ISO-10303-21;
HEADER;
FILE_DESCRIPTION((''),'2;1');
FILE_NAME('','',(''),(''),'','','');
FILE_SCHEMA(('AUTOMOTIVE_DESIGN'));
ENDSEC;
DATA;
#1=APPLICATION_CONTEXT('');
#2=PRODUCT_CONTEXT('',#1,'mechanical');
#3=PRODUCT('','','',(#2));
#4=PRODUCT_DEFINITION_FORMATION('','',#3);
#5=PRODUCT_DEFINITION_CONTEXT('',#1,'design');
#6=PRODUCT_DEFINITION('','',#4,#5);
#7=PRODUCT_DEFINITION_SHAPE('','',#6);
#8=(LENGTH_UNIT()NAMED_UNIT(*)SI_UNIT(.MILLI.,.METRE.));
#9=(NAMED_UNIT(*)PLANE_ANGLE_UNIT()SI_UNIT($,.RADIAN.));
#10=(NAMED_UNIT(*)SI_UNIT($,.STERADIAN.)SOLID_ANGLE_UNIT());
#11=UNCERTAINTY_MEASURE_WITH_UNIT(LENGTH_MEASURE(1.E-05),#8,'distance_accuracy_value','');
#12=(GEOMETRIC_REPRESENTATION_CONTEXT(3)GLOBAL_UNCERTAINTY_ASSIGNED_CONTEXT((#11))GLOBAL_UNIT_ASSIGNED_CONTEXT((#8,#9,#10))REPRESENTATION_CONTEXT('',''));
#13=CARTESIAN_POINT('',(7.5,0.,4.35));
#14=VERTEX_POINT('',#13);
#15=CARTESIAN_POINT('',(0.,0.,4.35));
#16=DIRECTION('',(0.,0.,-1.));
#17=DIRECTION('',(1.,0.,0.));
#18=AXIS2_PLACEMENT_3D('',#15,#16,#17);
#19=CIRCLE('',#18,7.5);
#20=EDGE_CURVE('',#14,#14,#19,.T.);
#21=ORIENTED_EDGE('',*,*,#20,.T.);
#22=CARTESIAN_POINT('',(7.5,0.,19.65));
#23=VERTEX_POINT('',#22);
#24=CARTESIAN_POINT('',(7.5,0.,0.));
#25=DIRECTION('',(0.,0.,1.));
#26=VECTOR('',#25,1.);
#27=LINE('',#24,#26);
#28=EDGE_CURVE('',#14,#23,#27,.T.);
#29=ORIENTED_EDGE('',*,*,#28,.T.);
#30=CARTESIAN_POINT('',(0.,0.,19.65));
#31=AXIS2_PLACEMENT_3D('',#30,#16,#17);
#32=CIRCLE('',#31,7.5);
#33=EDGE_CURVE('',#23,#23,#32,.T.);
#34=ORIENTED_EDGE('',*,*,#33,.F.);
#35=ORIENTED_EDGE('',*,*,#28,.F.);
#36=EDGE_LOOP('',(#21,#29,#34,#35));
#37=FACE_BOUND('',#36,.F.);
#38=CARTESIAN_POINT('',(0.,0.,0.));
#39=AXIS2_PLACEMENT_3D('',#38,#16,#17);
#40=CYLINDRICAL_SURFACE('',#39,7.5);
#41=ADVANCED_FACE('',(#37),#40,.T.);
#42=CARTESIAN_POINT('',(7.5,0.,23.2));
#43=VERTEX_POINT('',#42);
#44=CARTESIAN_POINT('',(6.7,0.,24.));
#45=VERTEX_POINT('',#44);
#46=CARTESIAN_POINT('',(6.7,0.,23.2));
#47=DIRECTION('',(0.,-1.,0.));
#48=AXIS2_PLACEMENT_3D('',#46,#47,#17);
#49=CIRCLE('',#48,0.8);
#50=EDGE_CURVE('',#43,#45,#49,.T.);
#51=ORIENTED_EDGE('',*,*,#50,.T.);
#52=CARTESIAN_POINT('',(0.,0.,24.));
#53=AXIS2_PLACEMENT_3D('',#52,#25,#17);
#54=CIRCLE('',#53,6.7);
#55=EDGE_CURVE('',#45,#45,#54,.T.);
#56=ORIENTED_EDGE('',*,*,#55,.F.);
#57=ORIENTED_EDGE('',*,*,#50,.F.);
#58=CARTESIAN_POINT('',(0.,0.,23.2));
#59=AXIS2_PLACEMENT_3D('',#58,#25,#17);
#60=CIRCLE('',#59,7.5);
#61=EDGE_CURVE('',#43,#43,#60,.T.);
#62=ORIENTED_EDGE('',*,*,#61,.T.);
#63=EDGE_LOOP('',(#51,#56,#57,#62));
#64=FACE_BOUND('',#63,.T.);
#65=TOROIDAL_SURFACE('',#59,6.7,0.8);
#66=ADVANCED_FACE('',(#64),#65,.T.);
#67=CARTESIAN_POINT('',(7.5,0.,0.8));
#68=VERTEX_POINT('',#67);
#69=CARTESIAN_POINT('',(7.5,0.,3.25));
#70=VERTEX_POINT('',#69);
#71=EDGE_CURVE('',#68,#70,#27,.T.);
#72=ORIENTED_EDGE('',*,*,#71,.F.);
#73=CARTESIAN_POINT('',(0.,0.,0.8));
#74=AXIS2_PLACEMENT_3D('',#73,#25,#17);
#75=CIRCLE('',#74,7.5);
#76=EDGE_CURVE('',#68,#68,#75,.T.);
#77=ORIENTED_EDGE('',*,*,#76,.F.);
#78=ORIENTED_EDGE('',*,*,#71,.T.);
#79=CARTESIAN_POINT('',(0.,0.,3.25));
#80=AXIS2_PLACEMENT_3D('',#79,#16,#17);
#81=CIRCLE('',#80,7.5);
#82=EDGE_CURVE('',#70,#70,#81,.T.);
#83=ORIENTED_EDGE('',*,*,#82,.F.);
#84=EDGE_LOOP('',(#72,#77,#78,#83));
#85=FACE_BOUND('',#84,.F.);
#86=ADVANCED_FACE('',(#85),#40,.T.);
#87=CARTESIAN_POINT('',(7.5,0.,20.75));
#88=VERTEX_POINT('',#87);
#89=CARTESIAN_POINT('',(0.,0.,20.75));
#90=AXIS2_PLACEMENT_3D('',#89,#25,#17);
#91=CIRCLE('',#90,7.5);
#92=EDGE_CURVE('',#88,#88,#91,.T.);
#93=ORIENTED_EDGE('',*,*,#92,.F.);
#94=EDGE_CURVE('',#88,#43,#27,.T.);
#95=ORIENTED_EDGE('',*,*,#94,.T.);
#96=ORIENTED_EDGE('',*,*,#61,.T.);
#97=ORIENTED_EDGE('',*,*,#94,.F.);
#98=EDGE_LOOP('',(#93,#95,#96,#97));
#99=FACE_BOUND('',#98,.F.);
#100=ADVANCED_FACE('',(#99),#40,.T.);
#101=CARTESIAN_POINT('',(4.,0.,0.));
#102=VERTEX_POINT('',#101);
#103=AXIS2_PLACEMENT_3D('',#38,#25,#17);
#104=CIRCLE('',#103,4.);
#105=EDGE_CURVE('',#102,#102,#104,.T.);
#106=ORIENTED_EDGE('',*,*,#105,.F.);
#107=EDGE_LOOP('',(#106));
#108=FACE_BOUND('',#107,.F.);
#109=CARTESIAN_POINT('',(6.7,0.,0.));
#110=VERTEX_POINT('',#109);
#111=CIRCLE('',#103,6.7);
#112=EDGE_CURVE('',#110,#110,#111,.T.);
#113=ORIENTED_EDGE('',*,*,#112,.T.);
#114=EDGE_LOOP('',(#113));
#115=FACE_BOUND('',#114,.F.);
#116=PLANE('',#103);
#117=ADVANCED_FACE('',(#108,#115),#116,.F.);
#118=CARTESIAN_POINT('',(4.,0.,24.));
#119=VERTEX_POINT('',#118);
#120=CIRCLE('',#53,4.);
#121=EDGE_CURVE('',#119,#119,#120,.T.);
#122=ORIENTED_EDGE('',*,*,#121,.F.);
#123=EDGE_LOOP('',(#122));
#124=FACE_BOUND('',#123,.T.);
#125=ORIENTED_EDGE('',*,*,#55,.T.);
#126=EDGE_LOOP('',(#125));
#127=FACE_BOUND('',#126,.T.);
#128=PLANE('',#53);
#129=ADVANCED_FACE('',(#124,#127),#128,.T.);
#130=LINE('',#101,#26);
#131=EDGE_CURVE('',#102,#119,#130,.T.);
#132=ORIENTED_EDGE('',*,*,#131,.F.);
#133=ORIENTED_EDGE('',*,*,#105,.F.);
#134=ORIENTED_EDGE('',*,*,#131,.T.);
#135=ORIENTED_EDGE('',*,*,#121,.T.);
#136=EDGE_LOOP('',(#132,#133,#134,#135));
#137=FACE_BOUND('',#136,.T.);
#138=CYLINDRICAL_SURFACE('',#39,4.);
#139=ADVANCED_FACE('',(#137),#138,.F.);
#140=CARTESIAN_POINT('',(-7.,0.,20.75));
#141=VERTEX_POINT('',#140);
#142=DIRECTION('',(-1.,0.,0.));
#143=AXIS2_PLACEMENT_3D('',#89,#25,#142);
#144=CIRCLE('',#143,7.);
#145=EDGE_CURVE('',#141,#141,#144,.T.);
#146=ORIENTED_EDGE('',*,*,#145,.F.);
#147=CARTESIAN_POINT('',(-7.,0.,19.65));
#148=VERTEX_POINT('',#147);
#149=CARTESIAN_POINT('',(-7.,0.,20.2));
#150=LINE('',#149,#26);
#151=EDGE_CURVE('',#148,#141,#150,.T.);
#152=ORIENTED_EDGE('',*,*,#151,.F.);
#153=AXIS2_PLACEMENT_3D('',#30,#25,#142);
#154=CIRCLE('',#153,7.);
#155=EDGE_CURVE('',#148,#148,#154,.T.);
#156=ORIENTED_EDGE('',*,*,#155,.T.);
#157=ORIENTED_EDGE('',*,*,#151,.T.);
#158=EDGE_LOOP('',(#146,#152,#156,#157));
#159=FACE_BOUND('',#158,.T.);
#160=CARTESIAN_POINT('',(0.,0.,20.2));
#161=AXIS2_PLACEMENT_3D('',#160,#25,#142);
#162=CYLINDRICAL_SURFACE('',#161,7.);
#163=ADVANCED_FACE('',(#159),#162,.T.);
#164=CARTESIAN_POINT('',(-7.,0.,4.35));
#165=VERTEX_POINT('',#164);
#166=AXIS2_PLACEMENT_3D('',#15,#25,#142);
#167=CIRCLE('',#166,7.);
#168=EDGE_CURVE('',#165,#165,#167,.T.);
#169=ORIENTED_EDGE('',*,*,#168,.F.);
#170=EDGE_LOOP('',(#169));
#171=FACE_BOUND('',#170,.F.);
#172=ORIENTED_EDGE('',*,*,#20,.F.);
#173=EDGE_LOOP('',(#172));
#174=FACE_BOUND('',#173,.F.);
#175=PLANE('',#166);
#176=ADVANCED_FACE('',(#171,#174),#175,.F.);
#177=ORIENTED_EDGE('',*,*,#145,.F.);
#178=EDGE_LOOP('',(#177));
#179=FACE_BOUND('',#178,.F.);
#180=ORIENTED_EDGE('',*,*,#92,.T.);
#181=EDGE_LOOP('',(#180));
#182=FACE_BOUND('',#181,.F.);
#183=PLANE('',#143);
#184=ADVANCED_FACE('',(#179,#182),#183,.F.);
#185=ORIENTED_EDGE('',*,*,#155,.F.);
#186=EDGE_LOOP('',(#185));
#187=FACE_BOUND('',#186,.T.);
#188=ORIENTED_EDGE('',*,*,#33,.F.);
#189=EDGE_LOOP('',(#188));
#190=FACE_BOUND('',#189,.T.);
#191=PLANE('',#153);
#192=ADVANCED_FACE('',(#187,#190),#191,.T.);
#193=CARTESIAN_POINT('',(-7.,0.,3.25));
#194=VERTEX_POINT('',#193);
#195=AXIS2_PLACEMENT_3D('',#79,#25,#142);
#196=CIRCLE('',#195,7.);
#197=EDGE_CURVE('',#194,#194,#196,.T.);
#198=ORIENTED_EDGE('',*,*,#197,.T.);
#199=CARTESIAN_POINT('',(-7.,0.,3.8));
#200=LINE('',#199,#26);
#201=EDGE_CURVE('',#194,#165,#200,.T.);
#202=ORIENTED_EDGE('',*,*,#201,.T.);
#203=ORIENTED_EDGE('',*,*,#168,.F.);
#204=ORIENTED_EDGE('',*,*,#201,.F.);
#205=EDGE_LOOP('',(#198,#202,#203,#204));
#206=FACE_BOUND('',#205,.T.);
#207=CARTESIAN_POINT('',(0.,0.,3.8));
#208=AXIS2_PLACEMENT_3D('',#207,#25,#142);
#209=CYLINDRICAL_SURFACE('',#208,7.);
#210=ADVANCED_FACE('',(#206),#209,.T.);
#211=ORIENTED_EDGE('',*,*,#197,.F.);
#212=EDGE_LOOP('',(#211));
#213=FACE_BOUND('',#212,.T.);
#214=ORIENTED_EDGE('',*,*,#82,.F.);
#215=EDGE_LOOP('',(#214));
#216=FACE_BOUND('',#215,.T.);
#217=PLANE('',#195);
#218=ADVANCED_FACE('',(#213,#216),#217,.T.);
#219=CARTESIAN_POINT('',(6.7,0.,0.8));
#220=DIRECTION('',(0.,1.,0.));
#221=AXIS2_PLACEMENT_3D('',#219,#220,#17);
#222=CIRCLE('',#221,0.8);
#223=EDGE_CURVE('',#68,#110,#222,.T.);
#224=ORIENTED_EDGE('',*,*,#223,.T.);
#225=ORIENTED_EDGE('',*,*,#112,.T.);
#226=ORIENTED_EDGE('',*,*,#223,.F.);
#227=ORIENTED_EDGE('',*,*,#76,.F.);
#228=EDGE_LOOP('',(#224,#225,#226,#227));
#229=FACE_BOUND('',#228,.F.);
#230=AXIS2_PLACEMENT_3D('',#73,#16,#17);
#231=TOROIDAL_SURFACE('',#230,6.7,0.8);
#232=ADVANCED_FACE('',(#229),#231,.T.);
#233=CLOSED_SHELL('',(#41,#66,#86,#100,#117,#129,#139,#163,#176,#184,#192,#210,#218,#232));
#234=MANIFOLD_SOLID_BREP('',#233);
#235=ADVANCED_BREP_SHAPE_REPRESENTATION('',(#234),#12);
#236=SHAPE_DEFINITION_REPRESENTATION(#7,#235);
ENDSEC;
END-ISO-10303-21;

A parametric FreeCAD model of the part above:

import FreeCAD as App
import Part
import Sketcher
Q = App.Units.Quantity


def edges_at(feature, points):
    """Names of the edges that pass closest to the given points."""
    edges = feature.Shape.Edges
    near = lambda p: min(range(len(edges)), key=lambda i: edges[i].distToShape(Part.Vertex(*p))[0])
    return sorted({f"Edge{near(p) + 1}" for p in points})

doc = App.newDocument("Part")
body = doc.addObject("PartDesign::Body", "Body")

# Sketch on XY plane
sketch1 = body.newObject("Sketcher::SketchObject", "Sketch")
sketch1.AttachmentSupport = (doc.getObject("XY_Plane"), [""])
sketch1.MapMode = "FlatFace"
sketch1.addGeometry([
    Part.Circle(App.Vector(0, 0, 0), App.Vector(0, 0, 1), 7.5),
    Part.Circle(App.Vector(0, 0, 0), App.Vector(0, 0, 1), 4),
], False)
sketch1.addConstraint([
    Sketcher.Constraint("Coincident", 0, 3, -1, 1),
    Sketcher.Constraint("Coincident", 1, 3, -1, 1),
    Sketcher.Constraint("Diameter", 0, Q("15 mm")),
    Sketcher.Constraint("Diameter", 1, Q("8 mm")),
])
pad1 = body.newObject("PartDesign::Pad", "Pad")
pad1.Profile = sketch1
pad1.Length = 24

# Sketch on XZ plane
sketch2 = body.newObject("Sketcher::SketchObject", "Sketch001")
sketch2.AttachmentSupport = (doc.getObject("XZ_Plane"), [""])
sketch2.MapMode = "FlatFace"
sketch2.addGeometry([
    Part.LineSegment(App.Vector(-7.5, 20.8, 0), App.Vector(-7.5, 19.6, 0)),  # 0
    Part.LineSegment(App.Vector(-7.5, 19.6, 0), App.Vector(-7, 19.6, 0)),  # 1
    Part.LineSegment(App.Vector(-7, 19.6, 0), App.Vector(-7, 20.8, 0)),  # 2
    Part.LineSegment(App.Vector(-7, 20.8, 0), App.Vector(-7.5, 20.8, 0)),  # 3
    Part.LineSegment(App.Vector(-7.5, 4.3, 0), App.Vector(-7.5, 3.2, 0)),  # 4
    Part.LineSegment(App.Vector(-7.5, 3.2, 0), App.Vector(-7, 3.2, 0)),  # 5
    Part.LineSegment(App.Vector(-7, 3.2, 0), App.Vector(-7, 4.3, 0)),  # 6
    Part.LineSegment(App.Vector(-7, 4.3, 0), App.Vector(-7.5, 4.3, 0)),  # 7
], False)
sketch2.addConstraint([
    Sketcher.Constraint("Coincident", 0, 2, 1, 1),
    Sketcher.Constraint("Coincident", 1, 2, 2, 1),
    Sketcher.Constraint("Coincident", 2, 2, 3, 1),
    Sketcher.Constraint("Coincident", 3, 2, 0, 1),
    Sketcher.Constraint("Coincident", 4, 2, 5, 1),
    Sketcher.Constraint("Coincident", 5, 2, 6, 1),
    Sketcher.Constraint("Coincident", 6, 2, 7, 1),
    Sketcher.Constraint("Coincident", 7, 2, 4, 1),
    Sketcher.Constraint("Vertical", 0),
    Sketcher.Constraint("Horizontal", 1),
    Sketcher.Constraint("Vertical", 2),
    Sketcher.Constraint("Horizontal", 3),
    Sketcher.Constraint("Vertical", 4),
    Sketcher.Constraint("Horizontal", 5),
    Sketcher.Constraint("Vertical", 6),
    Sketcher.Constraint("Horizontal", 7),
    Sketcher.Constraint("Vertical", 3, 2, 4, 2),
    Sketcher.Constraint("Vertical", 2, 2, 5, 2),
    Sketcher.Constraint("Equal", 2, 4),
    Sketcher.Constraint("DistanceX", 1, 1, 1, 2, Q("0.5 mm")),
    Sketcher.Constraint("DistanceY", 0, 2, 0, 1, Q("1.1 mm")),
    Sketcher.Constraint("DistanceX", 1, 2, -1, 1, Q("7 mm")),
    Sketcher.Constraint("DistanceY", 4, 2, 0, 2, Q("16.4 mm")),
    Sketcher.Constraint("DistanceY", -1, 1, 0, 2, Q("19.65 mm")),
])
groove = body.newObject("PartDesign::Groove", "Groove")
groove.Profile = sketch2
groove.ReferenceAxis = (sketch2, ["V_Axis"])
groove.Angle = 360
doc.recompute()

fillet = body.newObject("PartDesign::Fillet", "Fillet")
fillet.Base = (groove, edges_at(groove, [(-7.5, 0, 24), (-7.5, 0, 0)]))
fillet.Radius = 0.8

doc.recompute()
